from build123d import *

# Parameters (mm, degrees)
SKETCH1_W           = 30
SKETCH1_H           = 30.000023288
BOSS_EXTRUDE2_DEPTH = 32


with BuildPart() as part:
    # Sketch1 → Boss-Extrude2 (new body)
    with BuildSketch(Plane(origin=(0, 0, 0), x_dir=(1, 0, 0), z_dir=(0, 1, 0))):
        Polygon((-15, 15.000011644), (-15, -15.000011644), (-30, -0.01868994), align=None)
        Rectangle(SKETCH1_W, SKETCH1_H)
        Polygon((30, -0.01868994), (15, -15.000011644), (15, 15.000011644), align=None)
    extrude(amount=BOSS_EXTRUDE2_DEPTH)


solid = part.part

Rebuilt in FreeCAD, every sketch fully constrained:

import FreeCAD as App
import Part
import Sketcher
Q = App.Units.Quantity

doc = App.newDocument("Part")
params = doc.addObject("Spreadsheet::Sheet", "Params")
for row, (alias, value) in enumerate([
    ("sketch1_width", "30 mm"),
    ("sketch1_length", "21.2 mm"),
    ("pad1_length", "32 mm"),
], start=1):
    params.set(f"A{row}", alias)
    params.set(f"B{row}", "=" + value)
    params.setAlias(f"B{row}", alias)

body = doc.addObject("PartDesign::Body", "Body")

# Sketch on XZ plane
sketch1 = body.newObject("Sketcher::SketchObject", "Sketch")
sketch1.AttachmentSupport = (doc.getObject("XZ_Plane"), [""])
sketch1.MapMode = "FlatFace"
sketch1.addGeometry([
    Part.LineSegment(App.Vector(-30, 0, 0), App.Vector(-15, 15, 0)),  # 0
    Part.LineSegment(App.Vector(-15, 15, 0), App.Vector(15, 15, 0)),  # 1
    Part.LineSegment(App.Vector(15, 15, 0), App.Vector(30, 0, 0)),  # 2
    Part.LineSegment(App.Vector(30, 0, 0), App.Vector(15, -15, 0)),  # 3
    Part.LineSegment(App.Vector(15, -15, 0), App.Vector(-15, -15, 0)),  # 4
    Part.LineSegment(App.Vector(-15, -15, 0), App.Vector(-30, 0, 0)),  # 5
], False)
sketch1.addConstraint([
    Sketcher.Constraint("Coincident", 0, 2, 1, 1),
    Sketcher.Constraint("Coincident", 1, 2, 2, 1),
    Sketcher.Constraint("Coincident", 2, 2, 3, 1),
    Sketcher.Constraint("Coincident", 3, 2, 4, 1),
    Sketcher.Constraint("Coincident", 4, 2, 5, 1),
    Sketcher.Constraint("Coincident", 5, 2, 0, 1),
    Sketcher.Constraint("Horizontal", 1),
    Sketcher.Constraint("Horizontal", 4),
    Sketcher.Constraint("Symmetric", 0, 2, 3, 2, -1, 1),
    Sketcher.Constraint("Symmetric", 2, 2, 5, 2, -2),
    Sketcher.Constraint("Perpendicular", 2, 3),
    Sketcher.Constraint("Perpendicular", 0, 5),
    Sketcher.Constraint("Vertical", 1, 2, 3, 2),
    Sketcher.Constraint("DistanceX", 1, 1, 1, 2, Q("30 mm")),
    Sketcher.Constraint("DistanceX", -1, 1, 2, 2, Q("30 mm")),
    Sketcher.Constraint("Distance", 0, Q("21.2 mm")),
])
sketch1.setExpression("Constraints[13]", "Params.sketch1_width")
sketch1.setExpression("Constraints[15]", "Params.sketch1_length")
pad1 = body.newObject("PartDesign::Pad", "Pad")
pad1.Profile = sketch1
pad1.setExpression("Length", "Params.pad1_length")
pad1.Reversed = True

doc.recompute()
